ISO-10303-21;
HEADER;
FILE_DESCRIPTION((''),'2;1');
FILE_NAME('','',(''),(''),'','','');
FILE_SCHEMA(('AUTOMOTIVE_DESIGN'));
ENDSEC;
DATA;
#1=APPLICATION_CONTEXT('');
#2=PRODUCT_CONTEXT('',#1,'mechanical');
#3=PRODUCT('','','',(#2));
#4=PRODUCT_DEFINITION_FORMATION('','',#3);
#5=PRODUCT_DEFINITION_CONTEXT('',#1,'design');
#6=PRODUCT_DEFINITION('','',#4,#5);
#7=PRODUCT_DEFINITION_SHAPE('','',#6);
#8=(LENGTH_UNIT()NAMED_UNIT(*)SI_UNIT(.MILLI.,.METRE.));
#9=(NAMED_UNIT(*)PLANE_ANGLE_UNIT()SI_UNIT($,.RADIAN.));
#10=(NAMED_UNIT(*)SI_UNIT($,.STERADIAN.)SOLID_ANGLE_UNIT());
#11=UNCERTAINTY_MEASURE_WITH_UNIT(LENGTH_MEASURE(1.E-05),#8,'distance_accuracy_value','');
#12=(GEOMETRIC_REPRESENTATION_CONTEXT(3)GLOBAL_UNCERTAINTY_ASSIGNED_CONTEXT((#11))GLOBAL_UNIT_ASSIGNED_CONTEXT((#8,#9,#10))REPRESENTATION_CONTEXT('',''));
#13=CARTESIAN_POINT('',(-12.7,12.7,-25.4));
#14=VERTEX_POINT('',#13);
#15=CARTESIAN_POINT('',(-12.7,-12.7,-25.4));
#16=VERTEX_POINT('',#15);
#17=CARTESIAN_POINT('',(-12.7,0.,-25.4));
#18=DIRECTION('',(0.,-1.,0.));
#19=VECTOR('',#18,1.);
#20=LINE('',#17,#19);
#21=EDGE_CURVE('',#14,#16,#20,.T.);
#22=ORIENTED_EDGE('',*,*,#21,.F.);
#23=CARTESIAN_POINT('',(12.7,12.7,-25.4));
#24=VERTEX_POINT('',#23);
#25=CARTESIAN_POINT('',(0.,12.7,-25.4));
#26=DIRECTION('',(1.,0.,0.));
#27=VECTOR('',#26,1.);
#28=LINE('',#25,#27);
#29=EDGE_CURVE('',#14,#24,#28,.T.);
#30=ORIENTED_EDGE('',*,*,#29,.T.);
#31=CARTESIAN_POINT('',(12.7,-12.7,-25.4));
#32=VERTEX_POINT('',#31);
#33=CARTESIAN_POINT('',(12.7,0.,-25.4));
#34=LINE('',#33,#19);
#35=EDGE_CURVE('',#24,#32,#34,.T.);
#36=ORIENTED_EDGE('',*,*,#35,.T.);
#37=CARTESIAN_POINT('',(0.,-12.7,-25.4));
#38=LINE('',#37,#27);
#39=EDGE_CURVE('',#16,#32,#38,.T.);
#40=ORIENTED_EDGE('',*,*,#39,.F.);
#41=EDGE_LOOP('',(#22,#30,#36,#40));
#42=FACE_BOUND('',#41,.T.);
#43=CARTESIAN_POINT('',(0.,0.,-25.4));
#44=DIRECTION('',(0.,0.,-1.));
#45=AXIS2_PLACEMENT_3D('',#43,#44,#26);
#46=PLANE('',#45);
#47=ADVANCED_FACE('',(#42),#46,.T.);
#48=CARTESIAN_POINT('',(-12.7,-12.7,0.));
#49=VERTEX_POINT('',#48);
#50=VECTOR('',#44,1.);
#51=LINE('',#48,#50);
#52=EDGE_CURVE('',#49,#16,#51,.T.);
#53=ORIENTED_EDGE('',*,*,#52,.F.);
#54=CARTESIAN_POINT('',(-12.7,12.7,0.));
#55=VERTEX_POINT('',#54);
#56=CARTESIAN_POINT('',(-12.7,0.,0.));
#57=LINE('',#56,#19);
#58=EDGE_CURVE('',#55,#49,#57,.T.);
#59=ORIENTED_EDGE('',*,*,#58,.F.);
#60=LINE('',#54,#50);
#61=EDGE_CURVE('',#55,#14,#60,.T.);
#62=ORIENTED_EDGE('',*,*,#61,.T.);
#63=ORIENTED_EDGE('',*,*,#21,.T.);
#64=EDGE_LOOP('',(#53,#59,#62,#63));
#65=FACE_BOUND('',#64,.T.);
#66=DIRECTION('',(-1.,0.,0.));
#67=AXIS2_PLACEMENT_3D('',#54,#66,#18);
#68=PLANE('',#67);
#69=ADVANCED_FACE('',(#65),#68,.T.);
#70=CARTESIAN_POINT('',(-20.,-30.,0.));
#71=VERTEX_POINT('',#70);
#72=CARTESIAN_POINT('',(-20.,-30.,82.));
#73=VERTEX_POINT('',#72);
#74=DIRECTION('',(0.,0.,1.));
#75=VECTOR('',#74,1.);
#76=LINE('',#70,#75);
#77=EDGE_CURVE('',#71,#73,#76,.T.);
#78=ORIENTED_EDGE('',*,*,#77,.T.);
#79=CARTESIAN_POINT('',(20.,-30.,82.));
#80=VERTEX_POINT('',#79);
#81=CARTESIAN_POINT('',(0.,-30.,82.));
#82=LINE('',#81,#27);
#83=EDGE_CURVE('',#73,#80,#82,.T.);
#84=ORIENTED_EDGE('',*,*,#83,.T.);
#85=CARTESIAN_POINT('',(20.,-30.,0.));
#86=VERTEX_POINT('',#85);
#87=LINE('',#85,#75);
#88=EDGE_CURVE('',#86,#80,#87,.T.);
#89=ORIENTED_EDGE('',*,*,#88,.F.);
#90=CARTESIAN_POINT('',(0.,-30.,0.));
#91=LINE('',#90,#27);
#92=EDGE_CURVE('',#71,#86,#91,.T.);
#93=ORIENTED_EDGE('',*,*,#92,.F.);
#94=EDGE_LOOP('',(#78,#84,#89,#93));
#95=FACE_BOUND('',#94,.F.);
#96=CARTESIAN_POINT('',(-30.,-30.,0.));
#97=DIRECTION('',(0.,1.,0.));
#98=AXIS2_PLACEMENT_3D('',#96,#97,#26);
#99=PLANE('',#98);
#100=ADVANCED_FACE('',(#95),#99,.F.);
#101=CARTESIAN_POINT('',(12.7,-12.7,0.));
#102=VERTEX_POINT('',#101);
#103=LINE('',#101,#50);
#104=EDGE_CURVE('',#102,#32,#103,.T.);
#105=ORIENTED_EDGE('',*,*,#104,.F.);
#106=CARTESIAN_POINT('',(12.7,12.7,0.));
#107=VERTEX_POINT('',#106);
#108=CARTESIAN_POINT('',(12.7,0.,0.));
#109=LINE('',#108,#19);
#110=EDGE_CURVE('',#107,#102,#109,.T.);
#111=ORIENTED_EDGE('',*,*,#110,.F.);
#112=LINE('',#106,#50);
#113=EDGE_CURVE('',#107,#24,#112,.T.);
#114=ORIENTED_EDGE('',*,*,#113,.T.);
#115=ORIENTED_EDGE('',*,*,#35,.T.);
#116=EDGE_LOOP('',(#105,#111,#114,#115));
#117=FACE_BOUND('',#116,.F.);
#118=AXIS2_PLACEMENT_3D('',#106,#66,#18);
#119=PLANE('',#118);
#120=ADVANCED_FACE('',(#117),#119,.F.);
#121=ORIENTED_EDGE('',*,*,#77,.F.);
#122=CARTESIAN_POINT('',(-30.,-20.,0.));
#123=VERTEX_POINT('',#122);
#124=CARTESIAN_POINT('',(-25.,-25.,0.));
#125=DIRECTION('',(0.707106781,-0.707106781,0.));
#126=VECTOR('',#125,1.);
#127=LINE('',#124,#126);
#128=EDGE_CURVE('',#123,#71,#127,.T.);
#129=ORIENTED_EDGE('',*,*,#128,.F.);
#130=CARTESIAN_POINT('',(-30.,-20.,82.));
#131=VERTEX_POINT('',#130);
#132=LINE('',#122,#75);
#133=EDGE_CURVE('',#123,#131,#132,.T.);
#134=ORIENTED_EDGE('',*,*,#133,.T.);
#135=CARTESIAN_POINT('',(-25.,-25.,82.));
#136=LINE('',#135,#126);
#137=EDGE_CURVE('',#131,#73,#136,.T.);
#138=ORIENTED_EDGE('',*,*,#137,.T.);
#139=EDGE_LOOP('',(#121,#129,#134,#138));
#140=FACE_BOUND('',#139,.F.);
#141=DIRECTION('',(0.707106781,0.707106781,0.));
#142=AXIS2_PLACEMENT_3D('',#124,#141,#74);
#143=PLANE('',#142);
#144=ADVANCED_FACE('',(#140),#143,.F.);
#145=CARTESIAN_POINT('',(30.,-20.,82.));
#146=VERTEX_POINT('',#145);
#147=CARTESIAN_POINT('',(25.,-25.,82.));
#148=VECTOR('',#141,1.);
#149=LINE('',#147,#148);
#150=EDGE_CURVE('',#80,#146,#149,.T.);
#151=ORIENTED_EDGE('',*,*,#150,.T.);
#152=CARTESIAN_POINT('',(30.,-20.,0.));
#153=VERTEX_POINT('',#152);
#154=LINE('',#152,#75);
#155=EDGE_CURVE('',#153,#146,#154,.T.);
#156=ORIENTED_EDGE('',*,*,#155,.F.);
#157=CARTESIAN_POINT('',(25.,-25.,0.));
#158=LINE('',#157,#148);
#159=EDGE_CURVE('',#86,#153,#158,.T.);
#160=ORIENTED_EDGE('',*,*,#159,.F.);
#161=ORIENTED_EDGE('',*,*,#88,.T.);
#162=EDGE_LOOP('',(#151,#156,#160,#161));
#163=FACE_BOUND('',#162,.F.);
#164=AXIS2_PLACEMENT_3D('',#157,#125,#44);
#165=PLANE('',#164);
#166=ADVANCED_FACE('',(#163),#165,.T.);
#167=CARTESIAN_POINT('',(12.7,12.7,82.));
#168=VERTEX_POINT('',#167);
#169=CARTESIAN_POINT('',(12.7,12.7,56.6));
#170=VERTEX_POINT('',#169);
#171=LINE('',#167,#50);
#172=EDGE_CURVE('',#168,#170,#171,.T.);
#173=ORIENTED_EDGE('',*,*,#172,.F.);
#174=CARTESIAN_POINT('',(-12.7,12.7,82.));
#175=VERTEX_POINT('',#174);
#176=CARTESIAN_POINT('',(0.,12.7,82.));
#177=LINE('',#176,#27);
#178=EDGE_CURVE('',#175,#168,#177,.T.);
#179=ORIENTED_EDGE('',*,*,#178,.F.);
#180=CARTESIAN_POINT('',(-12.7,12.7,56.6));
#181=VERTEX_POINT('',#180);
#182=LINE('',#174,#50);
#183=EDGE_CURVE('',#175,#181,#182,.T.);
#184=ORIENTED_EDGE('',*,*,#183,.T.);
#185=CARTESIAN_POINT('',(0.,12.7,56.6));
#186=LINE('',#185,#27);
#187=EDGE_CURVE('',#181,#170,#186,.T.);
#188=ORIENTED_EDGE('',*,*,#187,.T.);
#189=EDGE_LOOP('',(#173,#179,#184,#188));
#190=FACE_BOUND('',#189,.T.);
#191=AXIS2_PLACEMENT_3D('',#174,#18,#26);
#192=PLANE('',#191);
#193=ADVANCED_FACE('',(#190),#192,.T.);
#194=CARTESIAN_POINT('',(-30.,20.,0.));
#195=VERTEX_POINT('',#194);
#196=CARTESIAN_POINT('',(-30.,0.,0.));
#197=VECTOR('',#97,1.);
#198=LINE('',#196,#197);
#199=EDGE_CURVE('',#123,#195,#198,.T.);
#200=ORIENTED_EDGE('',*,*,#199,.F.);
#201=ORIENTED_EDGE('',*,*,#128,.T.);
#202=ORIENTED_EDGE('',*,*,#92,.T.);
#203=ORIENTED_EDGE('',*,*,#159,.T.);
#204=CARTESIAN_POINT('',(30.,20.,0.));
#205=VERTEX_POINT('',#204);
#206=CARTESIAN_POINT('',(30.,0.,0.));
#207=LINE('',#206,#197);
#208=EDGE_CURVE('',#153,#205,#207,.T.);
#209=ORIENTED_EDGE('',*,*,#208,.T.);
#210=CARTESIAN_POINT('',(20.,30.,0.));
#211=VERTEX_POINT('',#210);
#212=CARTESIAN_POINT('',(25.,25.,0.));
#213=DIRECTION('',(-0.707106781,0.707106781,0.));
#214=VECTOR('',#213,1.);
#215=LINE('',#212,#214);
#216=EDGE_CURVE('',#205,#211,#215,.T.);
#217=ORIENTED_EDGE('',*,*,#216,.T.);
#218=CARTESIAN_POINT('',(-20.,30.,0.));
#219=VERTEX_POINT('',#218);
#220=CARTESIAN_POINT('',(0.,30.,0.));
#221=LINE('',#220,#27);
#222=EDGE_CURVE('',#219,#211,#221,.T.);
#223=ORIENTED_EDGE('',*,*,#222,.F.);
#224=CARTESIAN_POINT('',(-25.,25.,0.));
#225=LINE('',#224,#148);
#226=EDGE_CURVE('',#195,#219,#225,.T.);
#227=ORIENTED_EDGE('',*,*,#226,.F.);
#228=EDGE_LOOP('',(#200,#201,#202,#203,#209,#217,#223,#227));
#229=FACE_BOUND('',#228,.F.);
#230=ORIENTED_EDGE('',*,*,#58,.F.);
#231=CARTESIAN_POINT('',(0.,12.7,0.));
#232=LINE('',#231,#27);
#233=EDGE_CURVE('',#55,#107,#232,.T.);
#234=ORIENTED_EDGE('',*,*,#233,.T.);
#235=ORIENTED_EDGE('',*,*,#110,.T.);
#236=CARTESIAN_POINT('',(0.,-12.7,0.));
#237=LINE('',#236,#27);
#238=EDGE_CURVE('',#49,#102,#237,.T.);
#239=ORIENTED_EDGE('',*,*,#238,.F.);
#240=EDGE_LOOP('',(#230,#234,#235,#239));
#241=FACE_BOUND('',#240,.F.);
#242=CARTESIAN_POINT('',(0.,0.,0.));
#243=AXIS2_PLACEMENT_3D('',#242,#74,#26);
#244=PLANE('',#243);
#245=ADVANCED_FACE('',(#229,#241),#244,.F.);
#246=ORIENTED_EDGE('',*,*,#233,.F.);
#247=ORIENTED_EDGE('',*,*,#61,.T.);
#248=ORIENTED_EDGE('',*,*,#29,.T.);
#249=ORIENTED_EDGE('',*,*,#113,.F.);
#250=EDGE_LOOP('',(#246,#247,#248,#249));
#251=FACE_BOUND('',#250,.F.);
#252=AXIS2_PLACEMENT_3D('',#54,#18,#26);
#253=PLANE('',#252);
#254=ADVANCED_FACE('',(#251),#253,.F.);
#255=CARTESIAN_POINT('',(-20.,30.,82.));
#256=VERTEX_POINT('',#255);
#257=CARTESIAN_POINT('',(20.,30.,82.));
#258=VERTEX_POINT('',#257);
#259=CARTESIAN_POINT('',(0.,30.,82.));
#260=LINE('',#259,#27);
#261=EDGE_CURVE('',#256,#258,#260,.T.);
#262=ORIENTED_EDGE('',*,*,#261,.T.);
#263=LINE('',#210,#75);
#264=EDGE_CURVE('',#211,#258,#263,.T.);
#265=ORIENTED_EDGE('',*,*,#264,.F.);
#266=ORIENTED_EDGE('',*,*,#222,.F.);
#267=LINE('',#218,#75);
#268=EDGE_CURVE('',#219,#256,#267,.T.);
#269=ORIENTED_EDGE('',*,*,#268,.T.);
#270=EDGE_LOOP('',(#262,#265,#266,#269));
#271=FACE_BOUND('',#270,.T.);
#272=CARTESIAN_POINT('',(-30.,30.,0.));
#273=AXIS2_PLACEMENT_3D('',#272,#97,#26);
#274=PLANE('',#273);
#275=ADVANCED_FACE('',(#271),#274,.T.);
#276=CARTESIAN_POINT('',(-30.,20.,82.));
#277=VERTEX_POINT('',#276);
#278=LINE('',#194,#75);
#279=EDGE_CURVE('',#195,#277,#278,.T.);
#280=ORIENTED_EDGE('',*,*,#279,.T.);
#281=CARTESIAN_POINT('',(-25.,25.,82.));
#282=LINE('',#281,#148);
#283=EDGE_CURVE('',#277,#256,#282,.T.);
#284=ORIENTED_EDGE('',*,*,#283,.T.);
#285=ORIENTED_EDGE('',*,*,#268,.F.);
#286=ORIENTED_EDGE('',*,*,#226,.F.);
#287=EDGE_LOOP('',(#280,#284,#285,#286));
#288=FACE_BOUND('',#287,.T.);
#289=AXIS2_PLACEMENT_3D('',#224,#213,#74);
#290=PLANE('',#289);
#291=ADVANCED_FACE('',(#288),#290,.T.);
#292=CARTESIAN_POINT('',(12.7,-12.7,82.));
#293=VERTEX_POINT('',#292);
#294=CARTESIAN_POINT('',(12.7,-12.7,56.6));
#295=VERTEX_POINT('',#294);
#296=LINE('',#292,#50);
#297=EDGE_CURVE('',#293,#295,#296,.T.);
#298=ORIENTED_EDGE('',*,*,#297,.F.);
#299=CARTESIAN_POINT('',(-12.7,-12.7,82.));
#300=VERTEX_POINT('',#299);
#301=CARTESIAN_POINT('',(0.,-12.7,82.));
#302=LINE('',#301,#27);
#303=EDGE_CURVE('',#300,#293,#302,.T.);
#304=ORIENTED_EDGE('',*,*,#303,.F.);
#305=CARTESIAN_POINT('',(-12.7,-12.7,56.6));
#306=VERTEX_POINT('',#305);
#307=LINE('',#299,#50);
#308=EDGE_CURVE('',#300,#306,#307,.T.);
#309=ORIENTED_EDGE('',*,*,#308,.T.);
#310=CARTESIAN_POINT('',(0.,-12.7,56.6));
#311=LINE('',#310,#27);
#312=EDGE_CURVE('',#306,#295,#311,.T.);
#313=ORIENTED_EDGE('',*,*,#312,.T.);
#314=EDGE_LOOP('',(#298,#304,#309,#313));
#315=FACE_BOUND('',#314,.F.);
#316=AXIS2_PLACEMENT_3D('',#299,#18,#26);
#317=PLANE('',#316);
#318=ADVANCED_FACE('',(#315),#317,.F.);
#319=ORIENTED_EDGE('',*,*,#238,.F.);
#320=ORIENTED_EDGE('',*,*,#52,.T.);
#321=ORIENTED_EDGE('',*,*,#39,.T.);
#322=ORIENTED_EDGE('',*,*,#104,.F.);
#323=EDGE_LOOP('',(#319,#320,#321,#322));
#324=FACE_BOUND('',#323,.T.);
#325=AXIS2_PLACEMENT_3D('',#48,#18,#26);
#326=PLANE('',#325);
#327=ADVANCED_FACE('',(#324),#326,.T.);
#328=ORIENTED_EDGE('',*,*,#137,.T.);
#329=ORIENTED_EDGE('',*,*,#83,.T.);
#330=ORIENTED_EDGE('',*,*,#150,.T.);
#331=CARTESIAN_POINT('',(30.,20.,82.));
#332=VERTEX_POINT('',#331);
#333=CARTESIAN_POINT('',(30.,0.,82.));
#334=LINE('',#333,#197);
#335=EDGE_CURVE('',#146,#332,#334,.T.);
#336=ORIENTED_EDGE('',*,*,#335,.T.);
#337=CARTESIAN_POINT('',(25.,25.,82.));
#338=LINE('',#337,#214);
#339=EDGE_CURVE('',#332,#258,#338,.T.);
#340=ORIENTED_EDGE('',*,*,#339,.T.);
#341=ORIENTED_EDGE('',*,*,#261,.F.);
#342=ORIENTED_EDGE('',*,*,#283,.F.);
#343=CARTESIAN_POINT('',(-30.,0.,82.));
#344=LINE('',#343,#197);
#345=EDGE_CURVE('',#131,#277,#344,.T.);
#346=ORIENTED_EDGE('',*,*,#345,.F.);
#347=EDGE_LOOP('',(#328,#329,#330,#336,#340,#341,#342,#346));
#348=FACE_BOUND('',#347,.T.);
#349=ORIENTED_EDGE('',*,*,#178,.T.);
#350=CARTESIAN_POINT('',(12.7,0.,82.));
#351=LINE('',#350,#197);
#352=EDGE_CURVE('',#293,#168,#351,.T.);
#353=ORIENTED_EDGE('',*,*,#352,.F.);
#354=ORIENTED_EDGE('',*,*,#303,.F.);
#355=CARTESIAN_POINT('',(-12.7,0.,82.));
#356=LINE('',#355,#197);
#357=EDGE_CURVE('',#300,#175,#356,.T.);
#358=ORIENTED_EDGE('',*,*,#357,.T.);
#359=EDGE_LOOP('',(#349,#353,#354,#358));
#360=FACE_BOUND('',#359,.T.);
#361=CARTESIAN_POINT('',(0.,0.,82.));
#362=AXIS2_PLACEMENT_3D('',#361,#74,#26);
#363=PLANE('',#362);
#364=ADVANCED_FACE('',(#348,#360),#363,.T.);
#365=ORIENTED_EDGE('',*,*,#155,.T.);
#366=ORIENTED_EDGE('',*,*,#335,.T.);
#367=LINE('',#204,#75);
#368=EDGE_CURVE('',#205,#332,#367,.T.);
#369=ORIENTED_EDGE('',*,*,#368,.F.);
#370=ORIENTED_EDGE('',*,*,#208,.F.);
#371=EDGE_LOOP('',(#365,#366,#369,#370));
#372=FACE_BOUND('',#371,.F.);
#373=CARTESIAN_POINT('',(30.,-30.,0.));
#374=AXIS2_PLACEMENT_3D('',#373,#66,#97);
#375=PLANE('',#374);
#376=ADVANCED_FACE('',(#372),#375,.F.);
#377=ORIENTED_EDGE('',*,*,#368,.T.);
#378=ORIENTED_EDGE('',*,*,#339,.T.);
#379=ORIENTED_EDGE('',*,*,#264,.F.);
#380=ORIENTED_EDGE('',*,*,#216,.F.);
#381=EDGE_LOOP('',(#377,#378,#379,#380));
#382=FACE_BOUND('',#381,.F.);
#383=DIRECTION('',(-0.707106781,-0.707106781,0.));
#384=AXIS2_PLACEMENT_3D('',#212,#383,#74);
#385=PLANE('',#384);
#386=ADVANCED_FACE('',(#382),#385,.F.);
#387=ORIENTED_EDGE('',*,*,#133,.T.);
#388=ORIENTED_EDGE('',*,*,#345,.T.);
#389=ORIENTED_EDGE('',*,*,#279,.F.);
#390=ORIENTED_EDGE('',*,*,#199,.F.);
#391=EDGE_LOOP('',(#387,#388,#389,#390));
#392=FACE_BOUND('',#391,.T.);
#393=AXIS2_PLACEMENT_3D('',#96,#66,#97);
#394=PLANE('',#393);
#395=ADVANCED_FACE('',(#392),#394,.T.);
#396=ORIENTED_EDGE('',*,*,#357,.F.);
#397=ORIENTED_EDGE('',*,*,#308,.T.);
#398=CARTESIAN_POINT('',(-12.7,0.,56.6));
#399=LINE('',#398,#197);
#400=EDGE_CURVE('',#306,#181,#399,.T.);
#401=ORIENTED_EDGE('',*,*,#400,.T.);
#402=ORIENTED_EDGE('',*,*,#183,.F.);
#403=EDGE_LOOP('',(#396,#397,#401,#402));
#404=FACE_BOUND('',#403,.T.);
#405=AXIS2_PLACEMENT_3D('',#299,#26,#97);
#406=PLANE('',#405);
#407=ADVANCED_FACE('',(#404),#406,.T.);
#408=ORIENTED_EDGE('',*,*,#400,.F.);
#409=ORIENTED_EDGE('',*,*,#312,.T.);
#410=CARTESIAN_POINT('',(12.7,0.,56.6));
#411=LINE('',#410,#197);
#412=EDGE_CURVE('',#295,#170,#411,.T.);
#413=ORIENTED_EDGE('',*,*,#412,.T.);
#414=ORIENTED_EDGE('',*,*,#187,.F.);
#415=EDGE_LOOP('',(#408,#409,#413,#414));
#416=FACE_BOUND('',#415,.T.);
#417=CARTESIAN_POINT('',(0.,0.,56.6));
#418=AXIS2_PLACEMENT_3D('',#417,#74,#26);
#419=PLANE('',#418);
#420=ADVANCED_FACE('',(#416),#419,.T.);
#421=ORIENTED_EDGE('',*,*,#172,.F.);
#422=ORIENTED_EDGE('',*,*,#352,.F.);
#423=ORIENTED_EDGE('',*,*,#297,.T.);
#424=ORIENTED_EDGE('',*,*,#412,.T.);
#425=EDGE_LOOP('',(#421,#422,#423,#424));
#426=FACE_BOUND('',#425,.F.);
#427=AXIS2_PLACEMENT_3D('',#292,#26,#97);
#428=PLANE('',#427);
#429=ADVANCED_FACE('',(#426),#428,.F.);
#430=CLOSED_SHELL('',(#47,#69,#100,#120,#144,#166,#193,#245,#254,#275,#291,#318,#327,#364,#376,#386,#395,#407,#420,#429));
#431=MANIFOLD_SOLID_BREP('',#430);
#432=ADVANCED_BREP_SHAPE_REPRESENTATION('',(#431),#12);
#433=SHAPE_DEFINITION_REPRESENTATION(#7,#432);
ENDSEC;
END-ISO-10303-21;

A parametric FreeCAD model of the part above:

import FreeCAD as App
import Part
import Sketcher

V = App.Vector


def edges_at(feature, points):
    """Names of the edges that pass closest to the given points."""
    edges = feature.Shape.Edges
    near = lambda p: min(range(len(edges)), key=lambda i: edges[i].distToShape(Part.Vertex(*p))[0])
    return sorted({f"Edge{near(p) + 1}" for p in points})

doc = App.newDocument("Part")
body = doc.addObject("PartDesign::Body", "Body")

# Sketch on XY plane
sketch1 = body.newObject("Sketcher::SketchObject", "Sketch")
sketch1.AttachmentSupport = (doc.getObject("XY_Plane"), [""])
sketch1.MapMode = "FlatFace"
sketch1.addGeometry(Part.LineSegment(V(-30, 30, 0), V(-30, -30, 0)), False)
sketch1.addGeometry(Part.LineSegment(V(-30, -30, 0), V(30, -30, 0)), False)
sketch1.addGeometry(Part.LineSegment(V(30, -30, 0), V(30, 30, 0)), False)
sketch1.addGeometry(Part.LineSegment(V(30, 30, 0), V(-30, 30, 0)), False)
sketch1.addConstraint(Sketcher.Constraint("Coincident", 0, 2, 1, 1))
sketch1.addConstraint(Sketcher.Constraint("Coincident", 1, 2, 2, 1))
sketch1.addConstraint(Sketcher.Constraint("Coincident", 2, 2, 3, 1))
sketch1.addConstraint(Sketcher.Constraint("Coincident", 3, 2, 0, 1))
sketch1.addConstraint(Sketcher.Constraint("Vertical", 0))
sketch1.addConstraint(Sketcher.Constraint("Horizontal", 1))
sketch1.addConstraint(Sketcher.Constraint("Vertical", 2))
sketch1.addConstraint(Sketcher.Constraint("Horizontal", 3))
sketch1.addConstraint(Sketcher.Constraint("Symmetric", 0, 2, 2, 2, -1, 1))
sketch1.addConstraint(Sketcher.Constraint("Equal", 3, 0))
sketch1.addConstraint(Sketcher.Constraint("DistanceX", 1, 1, 1, 2, 60.0))
pad1 = body.newObject("PartDesign::Pad", "Pad")
pad1.Profile = sketch1
pad1.Length = 82
doc.recompute()

chamfer = body.newObject("PartDesign::Chamfer", "Chamfer")
chamfer.Base = (pad1, edges_at(pad1, [
    (30, -30, 41),
    (30, 30, 41),
    (-30, -30, 41),
    (-30, 30, 41),
]))
chamfer.Size = 10

# Sketch on XY plane
sketch2 = body.newObject("Sketcher::SketchObject", "Sketch001")
sketch2.AttachmentSupport = (doc.getObject("XY_Plane"), [""])
sketch2.MapMode = "FlatFace"
sketch2.AttachmentOffset = App.Placement(V(0, 0, 82), App.Rotation())
sketch2.addGeometry(Part.LineSegment(V(-13, 13, 0), V(-13, -13, 0)), False)
sketch2.addGeometry(Part.LineSegment(V(-13, -13, 0), V(13, -13, 0)), False)
sketch2.addGeometry(Part.LineSegment(V(13, -13, 0), V(13, 13, 0)), False)
sketch2.addGeometry(Part.LineSegment(V(13, 13, 0), V(-13, 13, 0)), False)
sketch2.addConstraint(Sketcher.Constraint("Coincident", 0, 2, 1, 1))
sketch2.addConstraint(Sketcher.Constraint("Coincident", 1, 2, 2, 1))
sketch2.addConstraint(Sketcher.Constraint("Coincident", 2, 2, 3, 1))
sketch2.addConstraint(Sketcher.Constraint("Coincident", 3, 2, 0, 1))
sketch2.addConstraint(Sketcher.Constraint("Vertical", 0))
sketch2.addConstraint(Sketcher.Constraint("Horizontal", 1))
sketch2.addConstraint(Sketcher.Constraint("Vertical", 2))
sketch2.addConstraint(Sketcher.Constraint("Horizontal", 3))
sketch2.addConstraint(Sketcher.Constraint("Symmetric", 0, 2, 2, 2, -1, 1))
sketch2.addConstraint(Sketcher.Constraint("Equal", 3, 0))
sketch2.addConstraint(Sketcher.Constraint("DistanceX", 1, 1, 1, 2, 25.4))
pocket1 = body.newObject("PartDesign::Pocket", "Pocket")
pocket1.Profile = sketch2
pocket1.Length = 25.4

# Sketch on XY plane
sketch3 = body.newObject("Sketcher::SketchObject", "Sketch002")
sketch3.AttachmentSupport = (doc.getObject("XY_Plane"), [""])
sketch3.MapMode = "FlatFace"
sketch3.addGeometry(Part.LineSegment(V(-13, -13, 0), V(-13, 13, 0)), False)
sketch3.addGeometry(Part.LineSegment(V(-13, 13, 0), V(13, 13, 0)), False)
sketch3.addGeometry(Part.LineSegment(V(13, 13, 0), V(13, -13, 0)), False)
sketch3.addGeometry(Part.LineSegment(V(13, -13, 0), V(-13, -13, 0)), False)
sketch3.addConstraint(Sketcher.Constraint("Coincident", 0, 2, 1, 1))
sketch3.addConstraint(Sketcher.Constraint("Coincident", 1, 2, 2, 1))
sketch3.addConstraint(Sketcher.Constraint("Coincident", 2, 2, 3, 1))
sketch3.addConstraint(Sketcher.Constraint("Coincident", 3, 2, 0, 1))
sketch3.addConstraint(Sketcher.Constraint("Vertical", 0))
sketch3.addConstraint(Sketcher.Constraint("Horizontal", 1))
sketch3.addConstraint(Sketcher.Constraint("Vertical", 2))
sketch3.addConstraint(Sketcher.Constraint("Horizontal", 3))
sketch3.addConstraint(Sketcher.Constraint("Symmetric", 0, 2, 2, 2, -1, 1))
sketch3.addConstraint(Sketcher.Constraint("Equal", 3, 0))
sketch3.addConstraint(Sketcher.Constraint("DistanceX", 1, 1, 1, 2, 25.4))
pad2 = body.newObject("PartDesign::Pad", "Pad001")
pad2.Profile = sketch3
pad2.Length = 25.4
pad2.Reversed = True

doc.recompute()
